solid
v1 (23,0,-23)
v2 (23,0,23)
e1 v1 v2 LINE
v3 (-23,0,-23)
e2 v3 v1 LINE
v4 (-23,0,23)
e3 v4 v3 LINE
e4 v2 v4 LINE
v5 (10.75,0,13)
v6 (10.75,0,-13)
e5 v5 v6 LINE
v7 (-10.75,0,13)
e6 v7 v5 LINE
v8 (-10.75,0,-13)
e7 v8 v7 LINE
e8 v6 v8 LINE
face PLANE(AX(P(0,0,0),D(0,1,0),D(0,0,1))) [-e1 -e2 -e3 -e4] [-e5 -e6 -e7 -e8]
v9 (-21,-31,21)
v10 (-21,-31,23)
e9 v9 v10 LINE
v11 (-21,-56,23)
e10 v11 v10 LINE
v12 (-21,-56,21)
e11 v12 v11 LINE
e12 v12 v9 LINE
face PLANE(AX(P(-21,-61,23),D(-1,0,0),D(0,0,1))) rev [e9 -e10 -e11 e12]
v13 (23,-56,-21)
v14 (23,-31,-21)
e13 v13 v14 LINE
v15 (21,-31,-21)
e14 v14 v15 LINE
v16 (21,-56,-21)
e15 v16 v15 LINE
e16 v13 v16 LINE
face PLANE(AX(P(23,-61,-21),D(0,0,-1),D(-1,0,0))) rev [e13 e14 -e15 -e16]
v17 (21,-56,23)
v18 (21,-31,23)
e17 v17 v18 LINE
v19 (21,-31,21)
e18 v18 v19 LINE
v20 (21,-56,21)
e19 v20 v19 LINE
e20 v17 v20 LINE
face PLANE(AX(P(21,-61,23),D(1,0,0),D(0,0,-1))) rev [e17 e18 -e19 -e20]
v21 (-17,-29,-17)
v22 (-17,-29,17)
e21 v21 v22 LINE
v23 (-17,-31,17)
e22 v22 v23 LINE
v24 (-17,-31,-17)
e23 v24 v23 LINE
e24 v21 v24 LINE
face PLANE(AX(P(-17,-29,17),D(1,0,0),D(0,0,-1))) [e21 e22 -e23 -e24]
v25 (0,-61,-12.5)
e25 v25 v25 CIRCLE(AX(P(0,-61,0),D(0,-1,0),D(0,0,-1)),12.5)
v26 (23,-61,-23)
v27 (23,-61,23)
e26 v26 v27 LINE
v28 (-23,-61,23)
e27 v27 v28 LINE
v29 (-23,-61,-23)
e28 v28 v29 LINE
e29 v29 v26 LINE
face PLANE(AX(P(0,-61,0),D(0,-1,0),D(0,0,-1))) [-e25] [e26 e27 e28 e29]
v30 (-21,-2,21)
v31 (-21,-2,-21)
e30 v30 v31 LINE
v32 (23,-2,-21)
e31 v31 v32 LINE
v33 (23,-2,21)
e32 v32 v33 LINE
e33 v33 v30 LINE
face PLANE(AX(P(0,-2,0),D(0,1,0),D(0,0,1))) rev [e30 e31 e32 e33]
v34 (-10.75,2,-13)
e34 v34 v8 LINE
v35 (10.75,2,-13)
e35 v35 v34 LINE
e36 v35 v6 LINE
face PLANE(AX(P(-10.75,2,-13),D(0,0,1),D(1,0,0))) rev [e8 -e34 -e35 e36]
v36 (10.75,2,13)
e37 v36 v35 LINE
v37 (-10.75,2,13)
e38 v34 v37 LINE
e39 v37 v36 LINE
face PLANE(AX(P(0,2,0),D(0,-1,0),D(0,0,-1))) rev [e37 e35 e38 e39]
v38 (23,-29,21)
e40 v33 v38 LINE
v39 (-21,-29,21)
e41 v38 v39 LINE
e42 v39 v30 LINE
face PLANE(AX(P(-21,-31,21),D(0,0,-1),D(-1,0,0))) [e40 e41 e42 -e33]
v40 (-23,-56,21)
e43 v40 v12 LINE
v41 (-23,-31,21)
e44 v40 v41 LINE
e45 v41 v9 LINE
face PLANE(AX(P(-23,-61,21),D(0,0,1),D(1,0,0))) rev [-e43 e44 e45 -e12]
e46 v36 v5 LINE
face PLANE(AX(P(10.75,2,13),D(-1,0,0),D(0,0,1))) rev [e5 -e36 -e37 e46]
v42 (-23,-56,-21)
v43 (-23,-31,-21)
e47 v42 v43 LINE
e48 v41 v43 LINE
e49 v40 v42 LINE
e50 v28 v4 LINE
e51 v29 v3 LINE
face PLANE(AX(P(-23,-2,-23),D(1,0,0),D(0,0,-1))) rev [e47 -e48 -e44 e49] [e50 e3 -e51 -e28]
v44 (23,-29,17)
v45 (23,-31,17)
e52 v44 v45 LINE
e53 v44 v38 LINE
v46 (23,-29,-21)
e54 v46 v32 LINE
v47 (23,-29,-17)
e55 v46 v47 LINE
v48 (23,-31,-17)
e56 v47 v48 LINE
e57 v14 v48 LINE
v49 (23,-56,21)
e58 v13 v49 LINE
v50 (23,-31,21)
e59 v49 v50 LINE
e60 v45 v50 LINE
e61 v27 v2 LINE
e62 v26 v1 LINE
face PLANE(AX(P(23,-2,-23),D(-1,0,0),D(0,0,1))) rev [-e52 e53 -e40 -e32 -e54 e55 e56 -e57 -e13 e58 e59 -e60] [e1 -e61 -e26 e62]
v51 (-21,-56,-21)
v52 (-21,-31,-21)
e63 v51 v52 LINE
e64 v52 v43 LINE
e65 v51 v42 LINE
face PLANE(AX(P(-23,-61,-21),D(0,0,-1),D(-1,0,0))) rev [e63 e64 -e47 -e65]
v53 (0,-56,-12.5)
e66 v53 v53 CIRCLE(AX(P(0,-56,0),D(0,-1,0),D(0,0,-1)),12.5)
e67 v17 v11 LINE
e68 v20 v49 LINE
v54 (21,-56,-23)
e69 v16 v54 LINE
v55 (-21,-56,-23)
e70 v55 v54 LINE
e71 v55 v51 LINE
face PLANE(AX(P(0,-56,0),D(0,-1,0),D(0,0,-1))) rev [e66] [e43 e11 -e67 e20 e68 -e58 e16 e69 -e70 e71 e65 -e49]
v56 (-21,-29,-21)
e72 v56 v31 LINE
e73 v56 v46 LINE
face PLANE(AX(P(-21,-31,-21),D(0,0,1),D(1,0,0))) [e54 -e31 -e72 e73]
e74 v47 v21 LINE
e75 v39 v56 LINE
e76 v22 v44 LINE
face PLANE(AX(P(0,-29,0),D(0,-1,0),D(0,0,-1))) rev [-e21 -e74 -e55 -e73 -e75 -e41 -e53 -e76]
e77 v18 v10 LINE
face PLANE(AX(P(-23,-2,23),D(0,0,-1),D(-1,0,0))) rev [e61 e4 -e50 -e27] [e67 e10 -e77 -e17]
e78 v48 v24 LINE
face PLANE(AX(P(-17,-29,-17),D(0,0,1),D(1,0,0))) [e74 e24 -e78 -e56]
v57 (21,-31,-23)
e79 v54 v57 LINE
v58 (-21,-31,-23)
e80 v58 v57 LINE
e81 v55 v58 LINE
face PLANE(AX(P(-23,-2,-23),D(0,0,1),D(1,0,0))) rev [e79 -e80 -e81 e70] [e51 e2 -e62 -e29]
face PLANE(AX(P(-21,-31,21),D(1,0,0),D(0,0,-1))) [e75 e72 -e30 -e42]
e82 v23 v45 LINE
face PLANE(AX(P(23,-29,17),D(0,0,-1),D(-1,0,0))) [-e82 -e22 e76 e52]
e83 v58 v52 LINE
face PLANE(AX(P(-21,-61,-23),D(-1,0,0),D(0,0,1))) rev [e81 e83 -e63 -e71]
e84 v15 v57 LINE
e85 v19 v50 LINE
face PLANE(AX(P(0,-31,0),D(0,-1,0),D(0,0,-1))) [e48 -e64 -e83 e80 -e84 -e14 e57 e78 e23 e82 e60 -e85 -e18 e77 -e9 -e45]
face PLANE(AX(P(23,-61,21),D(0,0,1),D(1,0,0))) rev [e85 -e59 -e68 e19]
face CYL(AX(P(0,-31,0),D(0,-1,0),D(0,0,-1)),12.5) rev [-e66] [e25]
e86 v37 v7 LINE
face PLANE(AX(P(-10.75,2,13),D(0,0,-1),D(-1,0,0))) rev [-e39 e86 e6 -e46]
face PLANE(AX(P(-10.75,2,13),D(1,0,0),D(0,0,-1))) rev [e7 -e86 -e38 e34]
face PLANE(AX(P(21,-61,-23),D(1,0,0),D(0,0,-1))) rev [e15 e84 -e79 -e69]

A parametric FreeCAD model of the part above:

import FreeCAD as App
import Part
import Sketcher

V = App.Vector


def add_polygon(sketch, points):
    """Adds a closed chain of lines whose ends are joined by coincident constraints."""
    first, n = sketch.GeometryCount, len(points)
    for a, b in zip(points, points[1:] + points[:1]):
        sketch.addGeometry(Part.LineSegment(App.Vector(*a, 0), App.Vector(*b, 0)), False)
    for i in range(n):
        sketch.addConstraint(Sketcher.Constraint("Coincident", first + i, 2, first + (i + 1) % n, 1))

doc = App.newDocument("Part")
body = doc.addObject("PartDesign::Body", "Body")

sketch1 = doc.addObject("Sketcher::SketchObject", "Sketch")
body.addObject(sketch1)
sketch1.AttachmentSupport = (doc.XZ_Plane, [""])
sketch1.MapMode = "FlatFace"
add_polygon(sketch1, [(-11, -13), (-11, 13), (11, 13), (11, -13)])
sketch1.addConstraint([
    Sketcher.Constraint("Vertical", 0),
    Sketcher.Constraint("Horizontal", 1),
    Sketcher.Constraint("Vertical", 2),
    Sketcher.Constraint("Horizontal", 3),
    Sketcher.Constraint("Symmetric", 0, 2, 2, 2, -1, 1),
    Sketcher.Constraint("DistanceY", 0, 1, 0, 2, 26.0),
    Sketcher.Constraint("DistanceX", 1, 1, 1, 2, 21.5),
])
pad1 = doc.addObject("PartDesign::Pad", "Pad")
body.addObject(pad1)
pad1.Profile = sketch1
pad1.Length = 2
pad1.Reversed = True

sketch2 = doc.addObject("Sketcher::SketchObject", "Sketch001")
body.addObject(sketch2)
sketch2.AttachmentSupport = (doc.XZ_Plane, [""])
sketch2.MapMode = "FlatFace"
add_polygon(sketch2, [(-23, 23), (-23, -23), (23, -23), (23, 23)])
sketch2.addConstraint([
    Sketcher.Constraint("Vertical", 0),
    Sketcher.Constraint("Horizontal", 1),
    Sketcher.Constraint("Vertical", 2),
    Sketcher.Constraint("Horizontal", 3),
    Sketcher.Constraint("Symmetric", 0, 2, 2, 2, -1, 1),
    Sketcher.Constraint("Equal", 3, 0),
    Sketcher.Constraint("DistanceX", 1, 1, 1, 2, 46.0),
])
pad2 = doc.addObject("PartDesign::Pad", "Pad001")
body.addObject(pad2)
pad2.Profile = sketch2
pad2.Length = 2

sketch3 = doc.addObject("Sketcher::SketchObject", "Sketch002")
body.addObject(sketch3)
sketch3.AttachmentSupport = (doc.XZ_Plane, [""])
sketch3.MapMode = "FlatFace"
sketch3.AttachmentOffset = App.Placement(V(0, 0, 2), App.Rotation())
add_polygon(sketch3, [(-23, 23), (-23, -23), (23, -23), (23, 23)])
add_polygon(sketch3, [(21, -21), (-21, -21), (-21, 21), (21, 21)])
sketch3.addConstraint([
    Sketcher.Constraint("Vertical", 0),
    Sketcher.Constraint("Horizontal", 1),
    Sketcher.Constraint("Vertical", 2),
    Sketcher.Constraint("Horizontal", 3),
    Sketcher.Constraint("Horizontal", 4),
    Sketcher.Constraint("Vertical", 5),
    Sketcher.Constraint("Horizontal", 6),
    Sketcher.Constraint("Vertical", 7),
    Sketcher.Constraint("Symmetric", 0, 2, 2, 2, -1, 1),
    Sketcher.Constraint("Symmetric", 4, 2, 6, 2, -1, 1),
    Sketcher.Constraint("Equal", 3, 0),
    Sketcher.Constraint("Equal", 6, 5),
    Sketcher.Constraint("DistanceX", 1, 1, 1, 2, 46.0),
    Sketcher.Constraint("DistanceX", 4, 2, 4, 1, 42.0),
])
pad3 = doc.addObject("PartDesign::Pad", "Pad002")
body.addObject(pad3)
pad3.Profile = sketch3
pad3.Length = 29

sketch4 = doc.addObject("Sketcher::SketchObject", "Sketch003")
body.addObject(sketch4)
sketch4.AttachmentSupport = (doc.YZ_Plane, [""])
sketch4.MapMode = "FlatFace"
sketch4.AttachmentOffset = App.Placement(V(0, 0, 23), App.Rotation())
add_polygon(sketch4, [(-2, 21), (-31, 21), (-31, -21), (-2, -21)])
sketch4.addConstraint([
    Sketcher.Constraint("Horizontal", 0),
    Sketcher.Constraint("Vertical", 1),
    Sketcher.Constraint("Horizontal", 2),
    Sketcher.Constraint("Vertical", 3),
    Sketcher.Constraint("DistanceX", 0, 2, 0, 1, 29.0),
    Sketcher.Constraint("DistanceY", 1, 2, 1, 1, 42.0),
    Sketcher.Constraint("DistanceX", 0, 2, -1, 1, 31.0),
    Sketcher.Constraint("DistanceY", -1, 1, 0, 2, 21.0),
])
pocket1 = doc.addObject("PartDesign::Pocket", "Pocket")
body.addObject(pocket1)
pocket1.Profile = sketch4
pocket1.Length = 29

sketch5 = doc.addObject("Sketcher::SketchObject", "Sketch004")
body.addObject(sketch5)
sketch5.AttachmentSupport = (doc.XZ_Plane, [""])
sketch5.MapMode = "FlatFace"
sketch5.AttachmentOffset = App.Placement(V(0, 0, 31), App.Rotation())
add_polygon(sketch5, [(-17, 17), (23, 17), (23, 23), (-23, 23), (-23, -23), (23, -23), (23, -17), (-17, -17)])
sketch5.addConstraint([
    Sketcher.Constraint("Horizontal", 0),
    Sketcher.Constraint("Vertical", 1),
    Sketcher.Constraint("Horizontal", 2),
    Sketcher.Constraint("Vertical", 3),
    Sketcher.Constraint("Horizontal", 4),
    Sketcher.Constraint("Vertical", 5),
    Sketcher.Constraint("Horizontal", 6),
    Sketcher.Constraint("Vertical", 7),
    Sketcher.Constraint("Symmetric", 1, 2, 3, 2, -1, 1),
    Sketcher.Constraint("Symmetric", 0, 2, 5, 2, -1),
    Sketcher.Constraint("Equal", 4, 3),
    Sketcher.Constraint("DistanceX", 0, 1, 0, 2, 40.0),
    Sketcher.Constraint("DistanceX", 2, 2, 2, 1, 46.0),
    Sketcher.Constraint("DistanceY", 1, 1, 1, 2, 6.0),
])
pad4 = doc.addObject("PartDesign::Pad", "Pad003")
body.addObject(pad4)
pad4.Profile = sketch5
pad4.Length = 2
pad4.Reversed = True

sketch6 = doc.addObject("Sketcher::SketchObject", "Sketch005")
body.addObject(sketch6)
sketch6.AttachmentSupport = (doc.XZ_Plane, [""])
sketch6.MapMode = "FlatFace"
sketch6.AttachmentOffset = App.Placement(V(0, 0, 31), App.Rotation())
add_polygon(sketch6, [(-23, 23), (-23, 21), (-21, 21), (-21, 23)])
add_polygon(sketch6, [(21, 23), (21, 21), (23, 21), (23, 23)])
add_polygon(sketch6, [(-23, -21), (-23, -23), (-21, -23), (-21, -21)])
add_polygon(sketch6, [(21, -21), (21, -23), (23, -23), (23, -21)])
sketch6.addConstraint([
    Sketcher.Constraint("Vertical", 0),
    Sketcher.Constraint("Horizontal", 1),
    Sketcher.Constraint("Vertical", 2),
    Sketcher.Constraint("Horizontal", 3),
    Sketcher.Constraint("Vertical", 4),
    Sketcher.Constraint("Horizontal", 5),
    Sketcher.Constraint("Vertical", 6),
    Sketcher.Constraint("Horizontal", 7),
    Sketcher.Constraint("Vertical", 8),
    Sketcher.Constraint("Horizontal", 9),
    Sketcher.Constraint("Vertical", 10),
    Sketcher.Constraint("Horizontal", 11),
    Sketcher.Constraint("Vertical", 12),
    Sketcher.Constraint("Horizontal", 13),
    Sketcher.Constraint("Vertical", 14),
    Sketcher.Constraint("Horizontal", 15),
    Sketcher.Constraint("Symmetric", 6, 2, 8, 2, -1, 1),
    Sketcher.Constraint("Symmetric", 4, 2, 10, 2, -1, 1),
    Sketcher.Constraint("Symmetric", 2, 2, 12, 2, -1, 1),
    Sketcher.Constraint("Symmetric", 0, 2, 14, 2, -1, 1),
    Sketcher.Constraint("Symmetric", 1, 2, 4, 2, -2),
    Sketcher.Constraint("Symmetric", 3, 2, 6, 2, -2),
    Sketcher.Constraint("Equal", 15, 0),
    Sketcher.Constraint("DistanceX", 1, 1, 1, 2, 2.0),
    Sketcher.Constraint("DistanceX", 0, 2, -1, 1, 23.0),
    Sketcher.Constraint("DistanceY", -1, 1, 0, 2, 21.0),
])
pad5 = doc.addObject("PartDesign::Pad", "Pad004")
body.addObject(pad5)
pad5.Profile = sketch6
pad5.Length = 30

sketch7 = doc.addObject("Sketcher::SketchObject", "Sketch006")
body.addObject(sketch7)
sketch7.AttachmentSupport = (doc.XZ_Plane, [""])
sketch7.MapMode = "FlatFace"
sketch7.AttachmentOffset = App.Placement(V(0, 0, 61), App.Rotation())
add_polygon(sketch7, [(-23, 23), (-23, -23), (23, -23), (23, 23)])
sketch7.addConstraint([
    Sketcher.Constraint("Vertical", 0),
    Sketcher.Constraint("Horizontal", 1),
    Sketcher.Constraint("Vertical", 2),
    Sketcher.Constraint("Horizontal", 3),
    Sketcher.Constraint("Symmetric", 0, 2, 2, 2, -1, 1),
    Sketcher.Constraint("Equal", 3, 0),
    Sketcher.Constraint("DistanceX", 1, 1, 1, 2, 46.0),
])
pad6 = doc.addObject("PartDesign::Pad", "Pad005")
body.addObject(pad6)
pad6.Profile = sketch7
pad6.Length = 5
pad6.Reversed = True

sketch8 = doc.addObject("Sketcher::SketchObject", "Sketch007")
body.addObject(sketch8)
sketch8.AttachmentSupport = (doc.XZ_Plane, [""])
sketch8.MapMode = "FlatFace"
sketch8.AttachmentOffset = App.Placement(V(0, 0, 61), App.Rotation())
sketch8.addGeometry(Part.Circle(V(0, 0, 0), V(0, 0, 1), 12), False)
sketch8.addConstraint([
    Sketcher.Constraint("Coincident", 0, 3, -1, 1),
    Sketcher.Constraint("Diameter", 0, 25.0),
])
pocket2 = doc.addObject("PartDesign::Pocket", "Pocket001")
body.addObject(pocket2)
pocket2.Profile = sketch8
pocket2.Length = 30

doc.recompute()
